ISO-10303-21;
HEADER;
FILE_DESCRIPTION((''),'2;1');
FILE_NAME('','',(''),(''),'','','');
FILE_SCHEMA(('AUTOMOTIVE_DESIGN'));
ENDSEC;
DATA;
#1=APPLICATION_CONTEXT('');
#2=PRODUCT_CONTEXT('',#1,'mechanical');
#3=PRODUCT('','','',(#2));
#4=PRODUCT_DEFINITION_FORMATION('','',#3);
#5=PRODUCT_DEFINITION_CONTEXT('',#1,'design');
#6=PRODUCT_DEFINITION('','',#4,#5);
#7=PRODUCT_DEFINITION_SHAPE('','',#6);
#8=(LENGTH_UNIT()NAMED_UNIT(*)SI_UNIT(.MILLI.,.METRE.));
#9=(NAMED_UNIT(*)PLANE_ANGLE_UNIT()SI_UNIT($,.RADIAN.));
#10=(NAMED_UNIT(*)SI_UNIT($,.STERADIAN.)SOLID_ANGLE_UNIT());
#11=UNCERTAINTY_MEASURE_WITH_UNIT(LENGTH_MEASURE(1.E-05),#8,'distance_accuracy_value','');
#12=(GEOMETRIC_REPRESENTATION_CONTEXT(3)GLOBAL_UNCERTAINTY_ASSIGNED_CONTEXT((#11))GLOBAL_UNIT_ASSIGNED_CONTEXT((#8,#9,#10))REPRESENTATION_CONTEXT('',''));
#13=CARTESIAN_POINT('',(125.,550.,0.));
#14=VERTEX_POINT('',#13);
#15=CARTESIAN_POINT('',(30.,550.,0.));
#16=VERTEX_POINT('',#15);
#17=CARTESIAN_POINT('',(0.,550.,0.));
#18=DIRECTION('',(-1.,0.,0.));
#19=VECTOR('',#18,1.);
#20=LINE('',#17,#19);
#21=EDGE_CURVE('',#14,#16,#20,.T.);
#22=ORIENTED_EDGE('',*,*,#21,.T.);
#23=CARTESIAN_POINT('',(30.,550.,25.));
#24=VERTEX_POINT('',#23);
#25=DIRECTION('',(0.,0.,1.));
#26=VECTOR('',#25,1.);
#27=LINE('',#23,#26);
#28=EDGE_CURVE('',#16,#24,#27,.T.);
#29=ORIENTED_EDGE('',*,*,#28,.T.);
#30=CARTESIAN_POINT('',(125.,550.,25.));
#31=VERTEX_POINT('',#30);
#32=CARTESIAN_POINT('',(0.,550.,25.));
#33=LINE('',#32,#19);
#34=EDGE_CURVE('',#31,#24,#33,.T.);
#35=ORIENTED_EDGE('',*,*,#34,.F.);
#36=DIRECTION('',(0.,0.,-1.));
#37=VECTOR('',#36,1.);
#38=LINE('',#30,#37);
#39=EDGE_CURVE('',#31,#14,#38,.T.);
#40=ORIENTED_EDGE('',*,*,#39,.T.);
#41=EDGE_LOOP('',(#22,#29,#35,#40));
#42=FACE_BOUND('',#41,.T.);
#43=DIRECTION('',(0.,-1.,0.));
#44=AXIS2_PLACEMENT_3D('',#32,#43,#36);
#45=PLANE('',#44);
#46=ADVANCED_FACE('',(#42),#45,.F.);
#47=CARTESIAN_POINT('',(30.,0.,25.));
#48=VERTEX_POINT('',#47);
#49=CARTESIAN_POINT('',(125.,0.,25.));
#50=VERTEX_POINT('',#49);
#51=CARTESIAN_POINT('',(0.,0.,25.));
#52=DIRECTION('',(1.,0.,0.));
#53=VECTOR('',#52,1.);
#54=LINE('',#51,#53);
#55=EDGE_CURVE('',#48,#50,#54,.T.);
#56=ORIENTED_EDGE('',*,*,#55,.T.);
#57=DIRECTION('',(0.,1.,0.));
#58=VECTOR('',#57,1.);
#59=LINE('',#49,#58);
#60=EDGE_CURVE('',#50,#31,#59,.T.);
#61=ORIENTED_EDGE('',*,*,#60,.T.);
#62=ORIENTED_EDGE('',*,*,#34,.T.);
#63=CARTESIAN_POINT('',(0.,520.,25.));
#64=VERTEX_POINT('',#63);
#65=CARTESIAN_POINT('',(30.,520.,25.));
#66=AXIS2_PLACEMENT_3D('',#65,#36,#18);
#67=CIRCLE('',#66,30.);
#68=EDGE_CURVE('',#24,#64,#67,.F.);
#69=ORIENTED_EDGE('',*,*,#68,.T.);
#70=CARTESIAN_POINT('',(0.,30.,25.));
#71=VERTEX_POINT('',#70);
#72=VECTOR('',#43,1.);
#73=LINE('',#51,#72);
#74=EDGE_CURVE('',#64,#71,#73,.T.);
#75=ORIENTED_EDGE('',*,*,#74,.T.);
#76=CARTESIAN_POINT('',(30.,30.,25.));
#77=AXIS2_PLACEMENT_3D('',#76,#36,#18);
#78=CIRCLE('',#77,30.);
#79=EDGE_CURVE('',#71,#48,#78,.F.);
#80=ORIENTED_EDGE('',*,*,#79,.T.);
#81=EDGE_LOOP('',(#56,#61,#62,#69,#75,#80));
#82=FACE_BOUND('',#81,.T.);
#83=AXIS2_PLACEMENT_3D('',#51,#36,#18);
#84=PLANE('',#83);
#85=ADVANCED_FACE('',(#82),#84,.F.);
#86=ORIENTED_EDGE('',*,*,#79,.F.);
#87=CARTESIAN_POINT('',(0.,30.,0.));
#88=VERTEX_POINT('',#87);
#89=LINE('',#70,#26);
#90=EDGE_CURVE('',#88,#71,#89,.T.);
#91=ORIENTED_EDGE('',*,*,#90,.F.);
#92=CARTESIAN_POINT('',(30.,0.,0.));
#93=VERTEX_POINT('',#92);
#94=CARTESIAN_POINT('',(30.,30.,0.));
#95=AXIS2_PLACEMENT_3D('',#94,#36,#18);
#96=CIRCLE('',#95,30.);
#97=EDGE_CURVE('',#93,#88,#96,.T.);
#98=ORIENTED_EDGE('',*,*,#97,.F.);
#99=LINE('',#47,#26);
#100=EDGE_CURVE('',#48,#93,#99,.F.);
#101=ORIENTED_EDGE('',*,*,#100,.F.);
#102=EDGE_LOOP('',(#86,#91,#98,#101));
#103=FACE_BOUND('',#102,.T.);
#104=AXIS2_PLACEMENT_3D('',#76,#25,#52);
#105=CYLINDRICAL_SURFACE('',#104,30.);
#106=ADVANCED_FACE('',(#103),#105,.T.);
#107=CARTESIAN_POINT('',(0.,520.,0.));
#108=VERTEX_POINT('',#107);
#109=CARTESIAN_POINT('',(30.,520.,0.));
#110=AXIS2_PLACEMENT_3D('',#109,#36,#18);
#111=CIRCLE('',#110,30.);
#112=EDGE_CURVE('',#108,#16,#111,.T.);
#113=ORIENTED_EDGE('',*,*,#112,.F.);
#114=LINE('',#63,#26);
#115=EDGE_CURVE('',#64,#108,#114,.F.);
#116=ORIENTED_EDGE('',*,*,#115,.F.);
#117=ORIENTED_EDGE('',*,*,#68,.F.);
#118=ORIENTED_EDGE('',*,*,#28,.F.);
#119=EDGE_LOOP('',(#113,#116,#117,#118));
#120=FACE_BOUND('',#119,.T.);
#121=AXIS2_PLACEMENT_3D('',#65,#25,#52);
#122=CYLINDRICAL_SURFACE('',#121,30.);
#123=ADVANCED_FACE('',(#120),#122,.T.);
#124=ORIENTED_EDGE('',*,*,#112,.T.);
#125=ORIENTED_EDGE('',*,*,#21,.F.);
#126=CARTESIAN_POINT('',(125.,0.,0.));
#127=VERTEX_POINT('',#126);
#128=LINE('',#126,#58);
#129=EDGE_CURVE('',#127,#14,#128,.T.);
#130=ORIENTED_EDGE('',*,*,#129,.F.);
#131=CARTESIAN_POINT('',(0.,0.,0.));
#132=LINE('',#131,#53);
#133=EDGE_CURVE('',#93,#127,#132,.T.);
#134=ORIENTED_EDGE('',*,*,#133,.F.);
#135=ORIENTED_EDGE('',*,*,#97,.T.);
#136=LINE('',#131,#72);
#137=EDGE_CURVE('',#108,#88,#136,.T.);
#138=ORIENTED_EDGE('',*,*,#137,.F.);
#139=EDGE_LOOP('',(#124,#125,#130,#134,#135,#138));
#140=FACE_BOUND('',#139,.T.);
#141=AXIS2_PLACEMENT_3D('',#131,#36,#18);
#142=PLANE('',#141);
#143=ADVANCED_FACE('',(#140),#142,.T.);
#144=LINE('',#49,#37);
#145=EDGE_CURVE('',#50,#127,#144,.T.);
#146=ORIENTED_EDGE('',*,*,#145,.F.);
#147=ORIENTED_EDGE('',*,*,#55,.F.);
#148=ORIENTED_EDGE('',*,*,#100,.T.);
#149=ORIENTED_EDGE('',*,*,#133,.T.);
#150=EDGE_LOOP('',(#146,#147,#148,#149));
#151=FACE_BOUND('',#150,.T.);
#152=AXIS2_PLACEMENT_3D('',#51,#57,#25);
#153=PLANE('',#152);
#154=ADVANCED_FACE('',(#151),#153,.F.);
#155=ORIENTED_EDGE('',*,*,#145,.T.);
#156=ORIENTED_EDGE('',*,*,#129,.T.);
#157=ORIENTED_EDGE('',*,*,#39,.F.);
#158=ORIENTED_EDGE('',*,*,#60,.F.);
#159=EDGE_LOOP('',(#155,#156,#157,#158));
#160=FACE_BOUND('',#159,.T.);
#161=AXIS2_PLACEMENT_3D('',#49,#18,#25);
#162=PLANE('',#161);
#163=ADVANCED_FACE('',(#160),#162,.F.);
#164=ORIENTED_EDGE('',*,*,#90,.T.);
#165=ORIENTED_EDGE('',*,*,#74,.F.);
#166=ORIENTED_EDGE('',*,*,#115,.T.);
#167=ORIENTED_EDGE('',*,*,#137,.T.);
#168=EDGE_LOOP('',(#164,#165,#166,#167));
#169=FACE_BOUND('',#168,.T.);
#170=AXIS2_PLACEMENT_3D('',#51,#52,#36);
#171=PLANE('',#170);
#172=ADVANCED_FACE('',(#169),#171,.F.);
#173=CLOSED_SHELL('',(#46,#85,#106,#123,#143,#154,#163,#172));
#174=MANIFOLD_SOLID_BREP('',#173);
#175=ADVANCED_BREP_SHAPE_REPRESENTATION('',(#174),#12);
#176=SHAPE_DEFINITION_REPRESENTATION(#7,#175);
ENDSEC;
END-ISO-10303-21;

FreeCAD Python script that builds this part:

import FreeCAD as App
import Part
import Sketcher

V = App.Vector
Q = App.Units.Quantity


def edges_at(feature, points):
    """Names of the edges that pass closest to the given points."""
    edges = feature.Shape.Edges
    near = lambda p: min(range(len(edges)), key=lambda i: edges[i].distToShape(Part.Vertex(*p))[0])
    return sorted({f"Edge{near(p) + 1}" for p in points})

doc = App.newDocument("Part")
body = doc.addObject("PartDesign::Body", "Body")

sketch1 = body.newObject("Sketcher::SketchObject", "Sketch")
sketch1.AttachmentSupport = (doc.getObject("XY_Plane"), [""])
sketch1.MapMode = "FlatFace"
sketch1.addGeometry(Part.LineSegment(V(0, 550, 0), V(0, 0, 0)), False)
sketch1.addGeometry(Part.LineSegment(V(0, 0, 0), V(125, 0, 0)), False)
sketch1.addGeometry(Part.LineSegment(V(125, 0, 0), V(125, 550, 0)), False)
sketch1.addGeometry(Part.LineSegment(V(125, 550, 0), V(0, 550, 0)), False)
sketch1.addConstraint(Sketcher.Constraint("Coincident", 0, 2, 1, 1))
sketch1.addConstraint(Sketcher.Constraint("Coincident", 1, 2, 2, 1))
sketch1.addConstraint(Sketcher.Constraint("Coincident", 2, 2, 3, 1))
sketch1.addConstraint(Sketcher.Constraint("Coincident", 3, 2, 0, 1))
sketch1.addConstraint(Sketcher.Constraint("Vertical", 0))
sketch1.addConstraint(Sketcher.Constraint("Horizontal", 1))
sketch1.addConstraint(Sketcher.Constraint("Vertical", 2))
sketch1.addConstraint(Sketcher.Constraint("Horizontal", 3))
sketch1.addConstraint(Sketcher.Constraint("Coincident", 0, 2, -1, 1))
sketch1.addConstraint(Sketcher.Constraint("DistanceX", 1, 1, 1, 2, Q("125 mm")))
sketch1.addConstraint(Sketcher.Constraint("DistanceY", 0, 2, 0, 1, Q("550 mm")))
pad1 = body.newObject("PartDesign::Pad", "Pad")
pad1.Profile = sketch1
pad1.Length = 25
doc.recompute()

fillet = body.newObject("PartDesign::Fillet", "Fillet")
fillet.Base = (pad1, edges_at(pad1, [(0, 550, 12.5)]))
fillet.Radius = 30
doc.recompute()

fillet2 = body.newObject("PartDesign::Fillet", "Fillet001")
fillet2.Base = (fillet, edges_at(fillet, [(0, 0, 12.5)]))
fillet2.Radius = 30

doc.recompute()
